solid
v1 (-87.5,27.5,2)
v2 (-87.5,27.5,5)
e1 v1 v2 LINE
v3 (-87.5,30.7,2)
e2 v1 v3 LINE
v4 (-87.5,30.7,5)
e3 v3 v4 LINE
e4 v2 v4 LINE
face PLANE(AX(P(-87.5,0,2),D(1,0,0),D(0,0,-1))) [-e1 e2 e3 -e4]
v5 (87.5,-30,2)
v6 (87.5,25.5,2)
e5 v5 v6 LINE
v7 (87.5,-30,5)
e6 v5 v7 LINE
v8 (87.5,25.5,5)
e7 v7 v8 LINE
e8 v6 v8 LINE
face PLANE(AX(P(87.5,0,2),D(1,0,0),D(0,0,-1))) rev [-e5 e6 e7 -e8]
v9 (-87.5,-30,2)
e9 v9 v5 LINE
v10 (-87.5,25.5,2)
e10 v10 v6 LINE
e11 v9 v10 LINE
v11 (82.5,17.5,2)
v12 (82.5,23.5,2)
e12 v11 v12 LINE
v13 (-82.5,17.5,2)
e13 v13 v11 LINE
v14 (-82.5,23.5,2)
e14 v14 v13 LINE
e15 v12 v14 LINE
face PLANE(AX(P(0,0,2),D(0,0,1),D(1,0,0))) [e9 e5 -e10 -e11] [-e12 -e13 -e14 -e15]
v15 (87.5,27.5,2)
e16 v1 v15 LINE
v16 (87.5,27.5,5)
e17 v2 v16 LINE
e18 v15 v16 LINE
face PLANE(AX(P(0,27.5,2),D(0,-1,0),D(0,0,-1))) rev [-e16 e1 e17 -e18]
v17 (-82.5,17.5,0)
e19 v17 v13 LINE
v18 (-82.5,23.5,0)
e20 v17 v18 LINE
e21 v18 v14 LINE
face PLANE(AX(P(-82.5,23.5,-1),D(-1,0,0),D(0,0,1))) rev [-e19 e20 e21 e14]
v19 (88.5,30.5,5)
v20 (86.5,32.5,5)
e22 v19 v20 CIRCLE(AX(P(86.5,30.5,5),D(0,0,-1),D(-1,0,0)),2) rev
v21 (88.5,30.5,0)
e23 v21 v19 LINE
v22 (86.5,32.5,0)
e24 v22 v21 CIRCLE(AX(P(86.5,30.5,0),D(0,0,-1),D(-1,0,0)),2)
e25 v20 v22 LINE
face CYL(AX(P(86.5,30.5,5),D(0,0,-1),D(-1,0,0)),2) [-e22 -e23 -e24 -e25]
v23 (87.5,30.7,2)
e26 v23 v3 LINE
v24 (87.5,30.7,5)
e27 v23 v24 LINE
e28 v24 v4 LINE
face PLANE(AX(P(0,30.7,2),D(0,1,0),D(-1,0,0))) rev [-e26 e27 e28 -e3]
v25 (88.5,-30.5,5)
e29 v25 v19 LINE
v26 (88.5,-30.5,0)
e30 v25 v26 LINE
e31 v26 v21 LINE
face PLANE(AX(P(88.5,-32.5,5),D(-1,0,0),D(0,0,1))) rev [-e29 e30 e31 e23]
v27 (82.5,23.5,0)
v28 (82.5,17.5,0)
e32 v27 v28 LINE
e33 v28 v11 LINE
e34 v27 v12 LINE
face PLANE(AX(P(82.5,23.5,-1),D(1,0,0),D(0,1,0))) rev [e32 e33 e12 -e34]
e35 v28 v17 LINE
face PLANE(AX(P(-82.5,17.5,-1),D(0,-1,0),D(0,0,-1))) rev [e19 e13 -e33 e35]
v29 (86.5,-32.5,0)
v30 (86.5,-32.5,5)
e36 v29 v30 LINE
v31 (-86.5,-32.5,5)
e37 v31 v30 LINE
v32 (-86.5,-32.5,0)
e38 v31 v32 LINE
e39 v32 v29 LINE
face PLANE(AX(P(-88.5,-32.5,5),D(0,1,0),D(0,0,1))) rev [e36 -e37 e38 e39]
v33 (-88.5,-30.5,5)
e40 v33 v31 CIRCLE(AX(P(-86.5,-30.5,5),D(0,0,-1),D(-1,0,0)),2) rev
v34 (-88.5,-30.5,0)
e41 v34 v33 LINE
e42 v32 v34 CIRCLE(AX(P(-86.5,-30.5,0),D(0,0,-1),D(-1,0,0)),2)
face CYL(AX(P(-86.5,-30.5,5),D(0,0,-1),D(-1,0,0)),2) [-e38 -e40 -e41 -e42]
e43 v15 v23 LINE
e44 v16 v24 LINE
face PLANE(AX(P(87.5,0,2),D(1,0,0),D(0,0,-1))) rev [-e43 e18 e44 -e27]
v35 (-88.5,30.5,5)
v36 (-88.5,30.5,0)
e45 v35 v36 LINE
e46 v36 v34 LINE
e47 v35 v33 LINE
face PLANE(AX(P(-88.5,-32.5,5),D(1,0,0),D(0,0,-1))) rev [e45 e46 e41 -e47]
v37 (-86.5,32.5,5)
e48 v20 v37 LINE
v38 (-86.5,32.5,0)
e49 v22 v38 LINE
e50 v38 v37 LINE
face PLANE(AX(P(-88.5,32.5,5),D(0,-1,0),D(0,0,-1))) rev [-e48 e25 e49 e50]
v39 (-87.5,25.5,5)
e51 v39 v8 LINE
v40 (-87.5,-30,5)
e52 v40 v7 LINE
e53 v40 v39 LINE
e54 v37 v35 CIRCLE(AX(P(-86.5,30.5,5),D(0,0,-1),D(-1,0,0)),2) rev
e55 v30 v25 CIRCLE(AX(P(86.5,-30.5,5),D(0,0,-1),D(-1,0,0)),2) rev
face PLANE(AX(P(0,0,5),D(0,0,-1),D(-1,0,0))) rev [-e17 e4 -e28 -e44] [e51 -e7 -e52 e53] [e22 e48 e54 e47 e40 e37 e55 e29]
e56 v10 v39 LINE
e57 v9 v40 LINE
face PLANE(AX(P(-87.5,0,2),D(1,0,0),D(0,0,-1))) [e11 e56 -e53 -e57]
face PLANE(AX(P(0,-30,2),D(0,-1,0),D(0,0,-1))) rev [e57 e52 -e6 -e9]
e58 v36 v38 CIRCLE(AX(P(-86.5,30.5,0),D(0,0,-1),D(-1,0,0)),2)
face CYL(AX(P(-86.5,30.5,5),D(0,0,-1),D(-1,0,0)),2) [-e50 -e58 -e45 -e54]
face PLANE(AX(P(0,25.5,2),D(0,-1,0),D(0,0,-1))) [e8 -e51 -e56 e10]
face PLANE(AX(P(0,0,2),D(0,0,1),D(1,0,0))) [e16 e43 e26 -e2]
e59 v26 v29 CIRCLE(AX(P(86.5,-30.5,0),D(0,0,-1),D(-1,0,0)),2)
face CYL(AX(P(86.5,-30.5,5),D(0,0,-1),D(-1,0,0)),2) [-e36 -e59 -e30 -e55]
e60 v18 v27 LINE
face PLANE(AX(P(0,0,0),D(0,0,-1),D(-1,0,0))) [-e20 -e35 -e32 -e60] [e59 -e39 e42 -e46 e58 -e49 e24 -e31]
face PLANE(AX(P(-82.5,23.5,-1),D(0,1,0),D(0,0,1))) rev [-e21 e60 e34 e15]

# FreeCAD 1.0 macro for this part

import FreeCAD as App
import Part
import Sketcher

V = App.Vector
Q = App.Units.Quantity


def edges_at(feature, points):
    """Names of the edges that pass closest to the given points."""
    edges = feature.Shape.Edges
    near = lambda p: min(range(len(edges)), key=lambda i: edges[i].distToShape(Part.Vertex(*p))[0])
    return sorted({f"Edge{near(p) + 1}" for p in points})


def add_polygon(sketch, points):
    """Adds a closed chain of lines whose ends are joined by coincident constraints."""
    first, n = sketch.GeometryCount, len(points)
    for a, b in zip(points, points[1:] + points[:1]):
        sketch.addGeometry(Part.LineSegment(App.Vector(*a, 0), App.Vector(*b, 0)), False)
    for i in range(n):
        sketch.addConstraint(Sketcher.Constraint("Coincident", first + i, 2, first + (i + 1) % n, 1))

doc = App.newDocument("Part")
body = doc.addObject("PartDesign::Body", "Body")

# Sketch on XY plane
sketch1 = body.newObject("Sketcher::SketchObject", "Sketch")
sketch1.AttachmentSupport = (doc.getObject("XY_Plane"), [""])
sketch1.MapMode = "FlatFace"
add_polygon(sketch1, [(-88.5, 32.5), (-88.5, -32.5), (88.5, -32.5), (88.5, 32.5)])  # lines 0-3
sketch1.addConstraint([
    Sketcher.Constraint("Vertical", 0),
    Sketcher.Constraint("Horizontal", 1),
    Sketcher.Constraint("Vertical", 2),
    Sketcher.Constraint("Horizontal", 3),
    Sketcher.Constraint("Symmetric", 0, 2, 2, 2, -1, 1),
    Sketcher.Constraint("DistanceX", 1, 1, 1, 2, Q("177 mm")),
    Sketcher.Constraint("DistanceY", 0, 2, 0, 1, Q("65 mm")),
])
pad1 = body.newObject("PartDesign::Pad", "Pad")
pad1.Profile = sketch1
pad1.Length = 5

# Sketch on XY plane
sketch2 = body.newObject("Sketcher::SketchObject", "Sketch001")
sketch2.AttachmentSupport = (doc.getObject("XY_Plane"), [""])
sketch2.MapMode = "FlatFace"
sketch2.AttachmentOffset = App.Placement(V(0, 0, 5), App.Rotation())
add_polygon(sketch2, [(-87.5, 27.5), (87.5, 27.5), (87.5, 30.7), (-87.5, 30.7)])  # lines 0-3
add_polygon(sketch2, [(-87.5, 25.5), (-87.5, -30), (87.5, -30), (87.5, 25.5)])  # lines 4-7
sketch2.addConstraint([
    Sketcher.Constraint("Horizontal", 0),
    Sketcher.Constraint("Vertical", 1),
    Sketcher.Constraint("Horizontal", 2),
    Sketcher.Constraint("Vertical", 3),
    Sketcher.Constraint("Vertical", 4),
    Sketcher.Constraint("Horizontal", 5),
    Sketcher.Constraint("Vertical", 6),
    Sketcher.Constraint("Horizontal", 7),
    Sketcher.Constraint("Vertical", 3, 2, 4, 2),
    Sketcher.Constraint("Vertical", 1, 2, 5, 2),
    Sketcher.Constraint("DistanceX", 0, 1, 0, 2, Q("175 mm")),
    Sketcher.Constraint("DistanceY", 1, 1, 1, 2, Q("3.2 mm")),
    Sketcher.Constraint("DistanceY", 4, 2, 4, 1, Q("55.5 mm")),
    Sketcher.Constraint("DistanceY", 4, 2, -1, 1, Q("30 mm")),
    Sketcher.Constraint("DistanceY", 6, 2, 0, 2, Q("2 mm")),
    Sketcher.Constraint("DistanceX", -1, 1, 0, 2, Q("87.5 mm")),
])
pocket1 = body.newObject("PartDesign::Pocket", "Pocket")
pocket1.Profile = sketch2
pocket1.Length = 3
doc.recompute()

fillet = body.newObject("PartDesign::Fillet", "Fillet")
fillet.Base = (pocket1, edges_at(pocket1, [
    (88.5, -32.5, 2.5),
    (-88.5, -32.5, 2.5),
    (-88.5, 32.5, 2.5),
    (88.5, 32.5, 2.5),
]))
fillet.Radius = 2

# Sketch on XY plane
sketch3 = body.newObject("Sketcher::SketchObject", "Sketch002")
sketch3.AttachmentSupport = (doc.getObject("XY_Plane"), [""])
sketch3.MapMode = "FlatFace"
sketch3.AttachmentOffset = App.Placement(V(0, 0, 2), App.Rotation())
add_polygon(sketch3, [(-82.5, 23.5), (-82.5, 17.5), (82.5, 17.5), (82.5, 23.5)])  # lines 0-3
sketch3.addConstraint([
    Sketcher.Constraint("Vertical", 0),
    Sketcher.Constraint("Horizontal", 1),
    Sketcher.Constraint("Vertical", 2),
    Sketcher.Constraint("Horizontal", 3),
    Sketcher.Constraint("DistanceX", 1, 1, 1, 2, Q("165 mm")),
    Sketcher.Constraint("DistanceY", 0, 2, 0, 1, Q("6 mm")),
    Sketcher.Constraint("DistanceX", 0, 2, -1, 1, Q("82.5 mm")),
    Sketcher.Constraint("DistanceY", -1, 1, 0, 2, Q("17.5 mm")),
])
pocket2 = body.newObject("PartDesign::Pocket", "Pocket001")
pocket2.Profile = sketch3
pocket2.Length = 3

doc.recompute()
